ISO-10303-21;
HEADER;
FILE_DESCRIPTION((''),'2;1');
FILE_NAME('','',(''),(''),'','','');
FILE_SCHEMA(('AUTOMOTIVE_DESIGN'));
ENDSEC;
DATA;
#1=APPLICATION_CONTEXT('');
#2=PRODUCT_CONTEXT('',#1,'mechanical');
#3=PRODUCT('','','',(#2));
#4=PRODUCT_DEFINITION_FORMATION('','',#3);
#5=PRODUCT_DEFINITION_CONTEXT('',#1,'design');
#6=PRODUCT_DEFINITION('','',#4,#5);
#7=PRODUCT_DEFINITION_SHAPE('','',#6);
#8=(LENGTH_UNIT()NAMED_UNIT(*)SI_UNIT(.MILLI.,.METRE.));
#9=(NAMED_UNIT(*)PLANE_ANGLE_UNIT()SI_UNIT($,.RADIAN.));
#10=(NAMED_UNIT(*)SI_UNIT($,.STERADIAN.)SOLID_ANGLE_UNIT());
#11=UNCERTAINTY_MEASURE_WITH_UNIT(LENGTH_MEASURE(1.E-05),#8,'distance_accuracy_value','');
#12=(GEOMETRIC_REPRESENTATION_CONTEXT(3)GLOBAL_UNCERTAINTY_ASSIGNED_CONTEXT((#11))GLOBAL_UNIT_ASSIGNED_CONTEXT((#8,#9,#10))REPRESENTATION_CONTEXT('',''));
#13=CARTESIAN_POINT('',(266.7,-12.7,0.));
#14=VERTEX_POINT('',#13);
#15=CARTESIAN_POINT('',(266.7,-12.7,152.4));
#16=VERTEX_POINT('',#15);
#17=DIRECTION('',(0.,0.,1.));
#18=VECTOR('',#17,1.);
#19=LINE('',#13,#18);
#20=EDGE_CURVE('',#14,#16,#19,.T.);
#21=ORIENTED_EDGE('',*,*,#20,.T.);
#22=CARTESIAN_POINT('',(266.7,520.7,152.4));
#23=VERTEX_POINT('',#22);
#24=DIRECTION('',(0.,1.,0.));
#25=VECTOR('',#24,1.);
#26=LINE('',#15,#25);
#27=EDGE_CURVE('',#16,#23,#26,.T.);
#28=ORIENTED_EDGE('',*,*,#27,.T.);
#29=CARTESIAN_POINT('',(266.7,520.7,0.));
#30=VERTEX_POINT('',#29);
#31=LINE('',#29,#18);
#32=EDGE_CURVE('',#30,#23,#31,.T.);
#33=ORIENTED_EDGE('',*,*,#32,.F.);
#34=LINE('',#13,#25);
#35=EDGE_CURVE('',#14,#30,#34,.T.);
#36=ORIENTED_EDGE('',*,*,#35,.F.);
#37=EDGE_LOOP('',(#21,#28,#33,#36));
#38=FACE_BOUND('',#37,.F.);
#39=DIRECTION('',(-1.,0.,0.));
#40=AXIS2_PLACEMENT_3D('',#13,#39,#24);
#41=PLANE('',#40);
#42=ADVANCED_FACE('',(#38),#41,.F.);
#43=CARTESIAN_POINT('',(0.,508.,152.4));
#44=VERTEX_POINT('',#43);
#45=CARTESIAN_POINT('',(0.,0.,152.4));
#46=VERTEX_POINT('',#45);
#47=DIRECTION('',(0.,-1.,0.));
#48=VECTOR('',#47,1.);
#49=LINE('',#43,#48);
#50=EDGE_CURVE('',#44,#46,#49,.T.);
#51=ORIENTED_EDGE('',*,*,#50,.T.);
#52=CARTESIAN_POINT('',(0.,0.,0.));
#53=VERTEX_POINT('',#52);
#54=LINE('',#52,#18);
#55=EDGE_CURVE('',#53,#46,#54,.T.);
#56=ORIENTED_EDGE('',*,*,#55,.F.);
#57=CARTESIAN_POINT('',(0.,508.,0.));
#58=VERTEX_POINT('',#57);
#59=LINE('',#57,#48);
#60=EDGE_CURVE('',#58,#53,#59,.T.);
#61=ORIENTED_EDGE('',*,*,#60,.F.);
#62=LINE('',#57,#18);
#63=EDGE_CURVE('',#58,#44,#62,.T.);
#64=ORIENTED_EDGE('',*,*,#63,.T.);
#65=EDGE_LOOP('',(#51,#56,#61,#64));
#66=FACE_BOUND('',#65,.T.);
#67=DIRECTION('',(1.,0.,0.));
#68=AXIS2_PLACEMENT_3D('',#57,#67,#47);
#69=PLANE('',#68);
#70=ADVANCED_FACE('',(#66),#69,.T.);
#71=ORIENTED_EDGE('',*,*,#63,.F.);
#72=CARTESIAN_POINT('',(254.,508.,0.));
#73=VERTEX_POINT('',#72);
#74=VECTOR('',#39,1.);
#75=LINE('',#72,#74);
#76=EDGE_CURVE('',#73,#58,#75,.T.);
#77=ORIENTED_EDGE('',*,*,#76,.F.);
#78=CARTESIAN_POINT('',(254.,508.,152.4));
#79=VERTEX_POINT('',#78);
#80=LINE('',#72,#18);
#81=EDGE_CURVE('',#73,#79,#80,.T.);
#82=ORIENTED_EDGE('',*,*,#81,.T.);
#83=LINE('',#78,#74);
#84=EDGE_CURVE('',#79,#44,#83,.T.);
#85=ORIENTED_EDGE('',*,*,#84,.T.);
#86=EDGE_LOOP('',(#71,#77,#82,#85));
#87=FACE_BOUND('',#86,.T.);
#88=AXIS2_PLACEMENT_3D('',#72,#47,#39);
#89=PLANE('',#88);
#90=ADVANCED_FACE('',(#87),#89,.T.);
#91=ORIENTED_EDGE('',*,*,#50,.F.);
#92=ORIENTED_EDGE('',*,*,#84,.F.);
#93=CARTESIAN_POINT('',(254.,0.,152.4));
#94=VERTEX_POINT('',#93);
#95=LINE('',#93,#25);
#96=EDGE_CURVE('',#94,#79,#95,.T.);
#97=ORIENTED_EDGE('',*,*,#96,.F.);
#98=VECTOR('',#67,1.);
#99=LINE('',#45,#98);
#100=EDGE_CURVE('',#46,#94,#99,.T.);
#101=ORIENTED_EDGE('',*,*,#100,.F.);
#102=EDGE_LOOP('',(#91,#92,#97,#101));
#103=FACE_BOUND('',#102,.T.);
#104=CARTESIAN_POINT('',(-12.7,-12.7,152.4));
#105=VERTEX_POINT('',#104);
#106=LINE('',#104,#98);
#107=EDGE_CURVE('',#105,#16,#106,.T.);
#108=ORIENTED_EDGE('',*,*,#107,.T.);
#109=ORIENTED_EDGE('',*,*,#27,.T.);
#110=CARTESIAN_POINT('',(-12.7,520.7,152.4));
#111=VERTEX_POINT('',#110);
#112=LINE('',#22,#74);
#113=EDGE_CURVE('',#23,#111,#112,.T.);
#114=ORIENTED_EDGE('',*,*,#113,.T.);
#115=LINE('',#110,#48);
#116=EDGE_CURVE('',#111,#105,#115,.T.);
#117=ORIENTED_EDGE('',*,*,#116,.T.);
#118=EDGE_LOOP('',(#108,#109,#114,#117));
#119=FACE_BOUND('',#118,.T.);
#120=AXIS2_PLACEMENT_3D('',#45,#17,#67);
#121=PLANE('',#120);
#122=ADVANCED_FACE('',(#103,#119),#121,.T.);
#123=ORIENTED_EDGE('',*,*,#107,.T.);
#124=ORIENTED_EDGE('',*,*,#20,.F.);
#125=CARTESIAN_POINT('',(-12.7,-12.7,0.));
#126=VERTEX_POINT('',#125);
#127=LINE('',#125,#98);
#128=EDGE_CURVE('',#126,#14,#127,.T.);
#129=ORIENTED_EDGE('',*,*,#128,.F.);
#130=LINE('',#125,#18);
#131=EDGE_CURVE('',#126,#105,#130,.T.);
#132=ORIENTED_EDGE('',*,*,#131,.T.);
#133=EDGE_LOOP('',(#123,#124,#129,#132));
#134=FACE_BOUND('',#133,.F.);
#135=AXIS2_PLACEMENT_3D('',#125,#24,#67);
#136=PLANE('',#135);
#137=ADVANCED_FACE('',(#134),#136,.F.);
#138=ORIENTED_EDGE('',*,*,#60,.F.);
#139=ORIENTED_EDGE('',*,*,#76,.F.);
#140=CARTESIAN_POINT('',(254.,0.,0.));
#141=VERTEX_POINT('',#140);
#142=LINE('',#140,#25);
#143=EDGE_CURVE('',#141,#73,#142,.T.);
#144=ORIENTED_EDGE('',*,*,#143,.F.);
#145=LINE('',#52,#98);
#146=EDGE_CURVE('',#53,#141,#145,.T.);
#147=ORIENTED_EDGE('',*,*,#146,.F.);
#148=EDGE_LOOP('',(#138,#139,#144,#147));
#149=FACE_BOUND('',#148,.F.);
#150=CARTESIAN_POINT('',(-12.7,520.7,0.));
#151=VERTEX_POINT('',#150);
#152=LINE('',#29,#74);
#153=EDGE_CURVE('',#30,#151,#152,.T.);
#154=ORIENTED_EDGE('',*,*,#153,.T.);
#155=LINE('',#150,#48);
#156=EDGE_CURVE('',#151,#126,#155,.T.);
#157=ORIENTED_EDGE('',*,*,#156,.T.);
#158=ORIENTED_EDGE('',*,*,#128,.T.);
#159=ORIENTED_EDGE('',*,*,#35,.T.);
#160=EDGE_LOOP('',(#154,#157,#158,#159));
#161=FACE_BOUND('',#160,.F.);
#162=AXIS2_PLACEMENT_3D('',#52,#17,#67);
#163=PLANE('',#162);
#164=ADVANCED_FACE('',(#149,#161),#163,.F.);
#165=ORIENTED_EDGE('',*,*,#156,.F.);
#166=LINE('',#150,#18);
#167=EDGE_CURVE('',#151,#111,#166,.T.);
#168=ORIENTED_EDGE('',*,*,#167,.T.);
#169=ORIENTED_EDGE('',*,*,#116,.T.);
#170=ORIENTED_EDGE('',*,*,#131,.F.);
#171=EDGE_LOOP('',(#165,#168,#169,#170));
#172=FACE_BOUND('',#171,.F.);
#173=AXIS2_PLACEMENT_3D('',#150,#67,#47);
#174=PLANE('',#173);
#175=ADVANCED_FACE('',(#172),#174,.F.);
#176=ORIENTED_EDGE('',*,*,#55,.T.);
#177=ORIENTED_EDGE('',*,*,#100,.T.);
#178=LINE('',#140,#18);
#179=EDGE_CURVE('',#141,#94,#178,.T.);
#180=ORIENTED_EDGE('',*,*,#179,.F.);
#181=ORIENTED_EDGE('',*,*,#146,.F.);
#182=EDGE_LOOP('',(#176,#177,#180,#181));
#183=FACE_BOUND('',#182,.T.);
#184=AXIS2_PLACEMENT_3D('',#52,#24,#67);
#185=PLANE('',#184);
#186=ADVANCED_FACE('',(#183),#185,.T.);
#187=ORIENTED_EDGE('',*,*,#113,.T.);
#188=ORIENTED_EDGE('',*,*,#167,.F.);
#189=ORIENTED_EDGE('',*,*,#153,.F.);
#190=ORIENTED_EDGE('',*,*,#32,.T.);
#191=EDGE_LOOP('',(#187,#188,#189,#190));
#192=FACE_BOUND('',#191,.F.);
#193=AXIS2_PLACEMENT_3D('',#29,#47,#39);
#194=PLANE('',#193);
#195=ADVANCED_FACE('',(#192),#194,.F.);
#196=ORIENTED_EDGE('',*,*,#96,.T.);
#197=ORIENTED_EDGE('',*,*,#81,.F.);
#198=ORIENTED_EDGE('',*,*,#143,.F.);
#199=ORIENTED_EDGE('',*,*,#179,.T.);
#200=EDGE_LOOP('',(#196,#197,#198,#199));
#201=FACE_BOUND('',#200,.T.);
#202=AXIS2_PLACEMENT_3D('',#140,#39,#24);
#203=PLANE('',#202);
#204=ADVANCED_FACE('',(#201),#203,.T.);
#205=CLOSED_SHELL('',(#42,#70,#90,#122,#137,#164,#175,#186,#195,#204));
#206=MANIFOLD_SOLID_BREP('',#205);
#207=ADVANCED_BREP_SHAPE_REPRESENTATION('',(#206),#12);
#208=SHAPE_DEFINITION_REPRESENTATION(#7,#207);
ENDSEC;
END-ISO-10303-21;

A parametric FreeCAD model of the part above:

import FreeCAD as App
import Part
import Sketcher
Q = App.Units.Quantity

doc = App.newDocument("Part")
body = doc.addObject("PartDesign::Body", "Body")

# Sketch on XY plane
sketch1 = body.newObject("Sketcher::SketchObject", "Sketch")
sketch1.AttachmentSupport = (doc.getObject("XY_Plane"), [""])
sketch1.MapMode = "FlatFace"
sketch1.addGeometry(Part.LineSegment(App.Vector(-12.7, 520.7, 0), App.Vector(-12.7, -12.7, 0)), False)
sketch1.addGeometry(Part.LineSegment(App.Vector(-12.7, -12.7, 0), App.Vector(266.7, -12.7, 0)), False)
sketch1.addGeometry(Part.LineSegment(App.Vector(266.7, -12.7, 0), App.Vector(266.7, 520.7, 0)), False)
sketch1.addGeometry(Part.LineSegment(App.Vector(266.7, 520.7, 0), App.Vector(-12.7, 520.7, 0)), False)
sketch1.addGeometry(Part.LineSegment(App.Vector(254, 0, 0), App.Vector(0, 0, 0)), False)
sketch1.addGeometry(Part.LineSegment(App.Vector(0, 0, 0), App.Vector(0, 508, 0)), False)
sketch1.addGeometry(Part.LineSegment(App.Vector(0, 508, 0), App.Vector(254, 508, 0)), False)
sketch1.addGeometry(Part.LineSegment(App.Vector(254, 508, 0), App.Vector(254, 0, 0)), False)
sketch1.addConstraint(Sketcher.Constraint("Coincident", 0, 2, 1, 1))
sketch1.addConstraint(Sketcher.Constraint("Coincident", 1, 2, 2, 1))
sketch1.addConstraint(Sketcher.Constraint("Coincident", 2, 2, 3, 1))
sketch1.addConstraint(Sketcher.Constraint("Coincident", 3, 2, 0, 1))
sketch1.addConstraint(Sketcher.Constraint("Coincident", 4, 2, 5, 1))
sketch1.addConstraint(Sketcher.Constraint("Coincident", 5, 2, 6, 1))
sketch1.addConstraint(Sketcher.Constraint("Coincident", 6, 2, 7, 1))
sketch1.addConstraint(Sketcher.Constraint("Coincident", 7, 2, 4, 1))
sketch1.addConstraint(Sketcher.Constraint("Vertical", 0))
sketch1.addConstraint(Sketcher.Constraint("Horizontal", 1))
sketch1.addConstraint(Sketcher.Constraint("Vertical", 2))
sketch1.addConstraint(Sketcher.Constraint("Horizontal", 3))
sketch1.addConstraint(Sketcher.Constraint("Horizontal", 4))
sketch1.addConstraint(Sketcher.Constraint("Vertical", 5))
sketch1.addConstraint(Sketcher.Constraint("Horizontal", 6))
sketch1.addConstraint(Sketcher.Constraint("Vertical", 7))
sketch1.addConstraint(Sketcher.Constraint("Coincident", 4, 2, -1, 1))
sketch1.addConstraint(Sketcher.Constraint("DistanceX", 1, 1, 1, 2, Q("11 in")))
sketch1.addConstraint(Sketcher.Constraint("DistanceX", 4, 2, 4, 1, Q("10 in")))
sketch1.addConstraint(Sketcher.Constraint("DistanceY", 0, 2, 0, 1, Q("21 in")))
sketch1.addConstraint(Sketcher.Constraint("DistanceY", 5, 1, 5, 2, Q("20 in")))
sketch1.addConstraint(Sketcher.Constraint("DistanceX", 0, 2, -1, 1, Q("0.5 in")))
sketch1.addConstraint(Sketcher.Constraint("DistanceY", 0, 2, -1, 1, Q("0.5 in")))
pad1 = body.newObject("PartDesign::Pad", "Pad")
pad1.Profile = sketch1
pad1.Length = Q("6 in")

doc.recompute()
